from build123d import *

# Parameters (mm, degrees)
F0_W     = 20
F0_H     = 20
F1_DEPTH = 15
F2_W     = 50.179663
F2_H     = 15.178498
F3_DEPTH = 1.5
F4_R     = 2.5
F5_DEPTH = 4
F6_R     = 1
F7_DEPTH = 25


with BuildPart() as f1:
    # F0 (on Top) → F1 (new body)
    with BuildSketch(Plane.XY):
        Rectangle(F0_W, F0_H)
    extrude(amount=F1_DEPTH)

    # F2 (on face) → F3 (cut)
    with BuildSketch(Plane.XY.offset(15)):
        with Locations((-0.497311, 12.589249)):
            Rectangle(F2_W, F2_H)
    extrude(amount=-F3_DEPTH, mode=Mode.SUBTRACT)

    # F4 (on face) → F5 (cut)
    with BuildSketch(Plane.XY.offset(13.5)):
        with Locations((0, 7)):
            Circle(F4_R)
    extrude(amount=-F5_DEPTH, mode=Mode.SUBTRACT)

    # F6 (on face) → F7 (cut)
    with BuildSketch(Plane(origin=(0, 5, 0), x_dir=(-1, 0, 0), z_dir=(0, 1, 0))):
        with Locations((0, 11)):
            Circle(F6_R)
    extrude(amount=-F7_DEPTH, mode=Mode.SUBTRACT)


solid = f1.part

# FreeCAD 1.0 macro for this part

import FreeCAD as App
import Part
import Sketcher
from FreeCAD import Vector


def add_polygon(sketch, points):
    """Adds a closed chain of lines whose ends are joined by coincident constraints."""
    first, n = sketch.GeometryCount, len(points)
    for a, b in zip(points, points[1:] + points[:1]):
        sketch.addGeometry(Part.LineSegment(App.Vector(*a, 0), App.Vector(*b, 0)), False)
    for i in range(n):
        sketch.addConstraint(Sketcher.Constraint("Coincident", first + i, 2, first + (i + 1) % n, 1))

doc = App.newDocument("Part")
body = doc.addObject("PartDesign::Body", "Body")

# Sketch on XY plane
sketch1 = doc.addObject("Sketcher::SketchObject", "Sketch")
body.addObject(sketch1)
sketch1.AttachmentSupport = (doc.XY_Plane, [""])
sketch1.MapMode = "FlatFace"
add_polygon(sketch1, [(-10, 10), (-10, -10), (10, -10), (10, 10)])  # lines 0-3
sketch1.addConstraint([
    Sketcher.Constraint("Vertical", 0),
    Sketcher.Constraint("Horizontal", 1),
    Sketcher.Constraint("Vertical", 2),
    Sketcher.Constraint("Horizontal", 3),
    Sketcher.Constraint("Symmetric", 0, 2, 2, 2, -1, 1),
    Sketcher.Constraint("Equal", 3, 0),
    Sketcher.Constraint("DistanceX", 1, 1, 1, 2, 20.0),
])
pad1 = doc.addObject("PartDesign::Pad", "Pad")
body.addObject(pad1)
pad1.Profile = sketch1
pad1.Length = 15

# Sketch on XY plane
sketch2 = doc.addObject("Sketcher::SketchObject", "Sketch001")
body.addObject(sketch2)
sketch2.AttachmentSupport = (doc.XY_Plane, [""])
sketch2.MapMode = "FlatFace"
sketch2.AttachmentOffset = App.Placement(Vector(0, 0, 15), App.Rotation())
add_polygon(sketch2, [(-26, 20), (-26, 5), (25, 5), (25, 20)])  # lines 0-3
sketch2.addConstraint([
    Sketcher.Constraint("Vertical", 0),
    Sketcher.Constraint("Horizontal", 1),
    Sketcher.Constraint("Vertical", 2),
    Sketcher.Constraint("Horizontal", 3),
    Sketcher.Constraint("DistanceY", -1, 1, 0, 2, 5.0),
    Sketcher.Constraint("DistanceY", 0, 2, 0, 1, 15.178498),
    Sketcher.Constraint("DistanceX", 1, 1, 1, 2, 50.179663),
    Sketcher.Constraint("DistanceX", -1, 1, 1, 2, 24.59252),
])
pocket1 = doc.addObject("PartDesign::Pocket", "Pocket")
body.addObject(pocket1)
pocket1.Profile = sketch2
pocket1.Length = 1.5

# Sketch on XY plane
sketch3 = doc.addObject("Sketcher::SketchObject", "Sketch002")
body.addObject(sketch3)
sketch3.AttachmentSupport = (doc.XY_Plane, [""])
sketch3.MapMode = "FlatFace"
sketch3.AttachmentOffset = App.Placement(Vector(0, 0, 13.5), App.Rotation())
sketch3.addGeometry(Part.Circle(Vector(0, 7, 0), Vector(0, 0, 1), 2.5), False)
sketch3.addConstraint([
    Sketcher.Constraint("PointOnObject", 0, 3, -2),
    Sketcher.Constraint("Diameter", 0, 5.0),
    Sketcher.Constraint("DistanceY", -1, 1, 0, 3, 7.0),
])
pocket2 = doc.addObject("PartDesign::Pocket", "Pocket001")
body.addObject(pocket2)
pocket2.Profile = sketch3
pocket2.Length = 4

# Sketch on XZ plane
sketch4 = doc.addObject("Sketcher::SketchObject", "Sketch003")
body.addObject(sketch4)
sketch4.AttachmentSupport = (doc.XZ_Plane, [""])
sketch4.MapMode = "FlatFace"
sketch4.AttachmentOffset = App.Placement(Vector(0, 0, -5), App.Rotation())
sketch4.addGeometry(Part.Circle(Vector(0, 11, 0), Vector(0, 0, 1), 1), False)
sketch4.addConstraint([
    Sketcher.Constraint("PointOnObject", 0, 3, -2),
    Sketcher.Constraint("Diameter", 0, 2.0),
    Sketcher.Constraint("DistanceY", -1, 1, 0, 3, 11.0),
])
pocket3 = doc.addObject("PartDesign::Pocket", "Pocket002")
body.addObject(pocket3)
pocket3.Profile = sketch4
pocket3.Length = 25
pocket3.Reversed = True

doc.recompute()
